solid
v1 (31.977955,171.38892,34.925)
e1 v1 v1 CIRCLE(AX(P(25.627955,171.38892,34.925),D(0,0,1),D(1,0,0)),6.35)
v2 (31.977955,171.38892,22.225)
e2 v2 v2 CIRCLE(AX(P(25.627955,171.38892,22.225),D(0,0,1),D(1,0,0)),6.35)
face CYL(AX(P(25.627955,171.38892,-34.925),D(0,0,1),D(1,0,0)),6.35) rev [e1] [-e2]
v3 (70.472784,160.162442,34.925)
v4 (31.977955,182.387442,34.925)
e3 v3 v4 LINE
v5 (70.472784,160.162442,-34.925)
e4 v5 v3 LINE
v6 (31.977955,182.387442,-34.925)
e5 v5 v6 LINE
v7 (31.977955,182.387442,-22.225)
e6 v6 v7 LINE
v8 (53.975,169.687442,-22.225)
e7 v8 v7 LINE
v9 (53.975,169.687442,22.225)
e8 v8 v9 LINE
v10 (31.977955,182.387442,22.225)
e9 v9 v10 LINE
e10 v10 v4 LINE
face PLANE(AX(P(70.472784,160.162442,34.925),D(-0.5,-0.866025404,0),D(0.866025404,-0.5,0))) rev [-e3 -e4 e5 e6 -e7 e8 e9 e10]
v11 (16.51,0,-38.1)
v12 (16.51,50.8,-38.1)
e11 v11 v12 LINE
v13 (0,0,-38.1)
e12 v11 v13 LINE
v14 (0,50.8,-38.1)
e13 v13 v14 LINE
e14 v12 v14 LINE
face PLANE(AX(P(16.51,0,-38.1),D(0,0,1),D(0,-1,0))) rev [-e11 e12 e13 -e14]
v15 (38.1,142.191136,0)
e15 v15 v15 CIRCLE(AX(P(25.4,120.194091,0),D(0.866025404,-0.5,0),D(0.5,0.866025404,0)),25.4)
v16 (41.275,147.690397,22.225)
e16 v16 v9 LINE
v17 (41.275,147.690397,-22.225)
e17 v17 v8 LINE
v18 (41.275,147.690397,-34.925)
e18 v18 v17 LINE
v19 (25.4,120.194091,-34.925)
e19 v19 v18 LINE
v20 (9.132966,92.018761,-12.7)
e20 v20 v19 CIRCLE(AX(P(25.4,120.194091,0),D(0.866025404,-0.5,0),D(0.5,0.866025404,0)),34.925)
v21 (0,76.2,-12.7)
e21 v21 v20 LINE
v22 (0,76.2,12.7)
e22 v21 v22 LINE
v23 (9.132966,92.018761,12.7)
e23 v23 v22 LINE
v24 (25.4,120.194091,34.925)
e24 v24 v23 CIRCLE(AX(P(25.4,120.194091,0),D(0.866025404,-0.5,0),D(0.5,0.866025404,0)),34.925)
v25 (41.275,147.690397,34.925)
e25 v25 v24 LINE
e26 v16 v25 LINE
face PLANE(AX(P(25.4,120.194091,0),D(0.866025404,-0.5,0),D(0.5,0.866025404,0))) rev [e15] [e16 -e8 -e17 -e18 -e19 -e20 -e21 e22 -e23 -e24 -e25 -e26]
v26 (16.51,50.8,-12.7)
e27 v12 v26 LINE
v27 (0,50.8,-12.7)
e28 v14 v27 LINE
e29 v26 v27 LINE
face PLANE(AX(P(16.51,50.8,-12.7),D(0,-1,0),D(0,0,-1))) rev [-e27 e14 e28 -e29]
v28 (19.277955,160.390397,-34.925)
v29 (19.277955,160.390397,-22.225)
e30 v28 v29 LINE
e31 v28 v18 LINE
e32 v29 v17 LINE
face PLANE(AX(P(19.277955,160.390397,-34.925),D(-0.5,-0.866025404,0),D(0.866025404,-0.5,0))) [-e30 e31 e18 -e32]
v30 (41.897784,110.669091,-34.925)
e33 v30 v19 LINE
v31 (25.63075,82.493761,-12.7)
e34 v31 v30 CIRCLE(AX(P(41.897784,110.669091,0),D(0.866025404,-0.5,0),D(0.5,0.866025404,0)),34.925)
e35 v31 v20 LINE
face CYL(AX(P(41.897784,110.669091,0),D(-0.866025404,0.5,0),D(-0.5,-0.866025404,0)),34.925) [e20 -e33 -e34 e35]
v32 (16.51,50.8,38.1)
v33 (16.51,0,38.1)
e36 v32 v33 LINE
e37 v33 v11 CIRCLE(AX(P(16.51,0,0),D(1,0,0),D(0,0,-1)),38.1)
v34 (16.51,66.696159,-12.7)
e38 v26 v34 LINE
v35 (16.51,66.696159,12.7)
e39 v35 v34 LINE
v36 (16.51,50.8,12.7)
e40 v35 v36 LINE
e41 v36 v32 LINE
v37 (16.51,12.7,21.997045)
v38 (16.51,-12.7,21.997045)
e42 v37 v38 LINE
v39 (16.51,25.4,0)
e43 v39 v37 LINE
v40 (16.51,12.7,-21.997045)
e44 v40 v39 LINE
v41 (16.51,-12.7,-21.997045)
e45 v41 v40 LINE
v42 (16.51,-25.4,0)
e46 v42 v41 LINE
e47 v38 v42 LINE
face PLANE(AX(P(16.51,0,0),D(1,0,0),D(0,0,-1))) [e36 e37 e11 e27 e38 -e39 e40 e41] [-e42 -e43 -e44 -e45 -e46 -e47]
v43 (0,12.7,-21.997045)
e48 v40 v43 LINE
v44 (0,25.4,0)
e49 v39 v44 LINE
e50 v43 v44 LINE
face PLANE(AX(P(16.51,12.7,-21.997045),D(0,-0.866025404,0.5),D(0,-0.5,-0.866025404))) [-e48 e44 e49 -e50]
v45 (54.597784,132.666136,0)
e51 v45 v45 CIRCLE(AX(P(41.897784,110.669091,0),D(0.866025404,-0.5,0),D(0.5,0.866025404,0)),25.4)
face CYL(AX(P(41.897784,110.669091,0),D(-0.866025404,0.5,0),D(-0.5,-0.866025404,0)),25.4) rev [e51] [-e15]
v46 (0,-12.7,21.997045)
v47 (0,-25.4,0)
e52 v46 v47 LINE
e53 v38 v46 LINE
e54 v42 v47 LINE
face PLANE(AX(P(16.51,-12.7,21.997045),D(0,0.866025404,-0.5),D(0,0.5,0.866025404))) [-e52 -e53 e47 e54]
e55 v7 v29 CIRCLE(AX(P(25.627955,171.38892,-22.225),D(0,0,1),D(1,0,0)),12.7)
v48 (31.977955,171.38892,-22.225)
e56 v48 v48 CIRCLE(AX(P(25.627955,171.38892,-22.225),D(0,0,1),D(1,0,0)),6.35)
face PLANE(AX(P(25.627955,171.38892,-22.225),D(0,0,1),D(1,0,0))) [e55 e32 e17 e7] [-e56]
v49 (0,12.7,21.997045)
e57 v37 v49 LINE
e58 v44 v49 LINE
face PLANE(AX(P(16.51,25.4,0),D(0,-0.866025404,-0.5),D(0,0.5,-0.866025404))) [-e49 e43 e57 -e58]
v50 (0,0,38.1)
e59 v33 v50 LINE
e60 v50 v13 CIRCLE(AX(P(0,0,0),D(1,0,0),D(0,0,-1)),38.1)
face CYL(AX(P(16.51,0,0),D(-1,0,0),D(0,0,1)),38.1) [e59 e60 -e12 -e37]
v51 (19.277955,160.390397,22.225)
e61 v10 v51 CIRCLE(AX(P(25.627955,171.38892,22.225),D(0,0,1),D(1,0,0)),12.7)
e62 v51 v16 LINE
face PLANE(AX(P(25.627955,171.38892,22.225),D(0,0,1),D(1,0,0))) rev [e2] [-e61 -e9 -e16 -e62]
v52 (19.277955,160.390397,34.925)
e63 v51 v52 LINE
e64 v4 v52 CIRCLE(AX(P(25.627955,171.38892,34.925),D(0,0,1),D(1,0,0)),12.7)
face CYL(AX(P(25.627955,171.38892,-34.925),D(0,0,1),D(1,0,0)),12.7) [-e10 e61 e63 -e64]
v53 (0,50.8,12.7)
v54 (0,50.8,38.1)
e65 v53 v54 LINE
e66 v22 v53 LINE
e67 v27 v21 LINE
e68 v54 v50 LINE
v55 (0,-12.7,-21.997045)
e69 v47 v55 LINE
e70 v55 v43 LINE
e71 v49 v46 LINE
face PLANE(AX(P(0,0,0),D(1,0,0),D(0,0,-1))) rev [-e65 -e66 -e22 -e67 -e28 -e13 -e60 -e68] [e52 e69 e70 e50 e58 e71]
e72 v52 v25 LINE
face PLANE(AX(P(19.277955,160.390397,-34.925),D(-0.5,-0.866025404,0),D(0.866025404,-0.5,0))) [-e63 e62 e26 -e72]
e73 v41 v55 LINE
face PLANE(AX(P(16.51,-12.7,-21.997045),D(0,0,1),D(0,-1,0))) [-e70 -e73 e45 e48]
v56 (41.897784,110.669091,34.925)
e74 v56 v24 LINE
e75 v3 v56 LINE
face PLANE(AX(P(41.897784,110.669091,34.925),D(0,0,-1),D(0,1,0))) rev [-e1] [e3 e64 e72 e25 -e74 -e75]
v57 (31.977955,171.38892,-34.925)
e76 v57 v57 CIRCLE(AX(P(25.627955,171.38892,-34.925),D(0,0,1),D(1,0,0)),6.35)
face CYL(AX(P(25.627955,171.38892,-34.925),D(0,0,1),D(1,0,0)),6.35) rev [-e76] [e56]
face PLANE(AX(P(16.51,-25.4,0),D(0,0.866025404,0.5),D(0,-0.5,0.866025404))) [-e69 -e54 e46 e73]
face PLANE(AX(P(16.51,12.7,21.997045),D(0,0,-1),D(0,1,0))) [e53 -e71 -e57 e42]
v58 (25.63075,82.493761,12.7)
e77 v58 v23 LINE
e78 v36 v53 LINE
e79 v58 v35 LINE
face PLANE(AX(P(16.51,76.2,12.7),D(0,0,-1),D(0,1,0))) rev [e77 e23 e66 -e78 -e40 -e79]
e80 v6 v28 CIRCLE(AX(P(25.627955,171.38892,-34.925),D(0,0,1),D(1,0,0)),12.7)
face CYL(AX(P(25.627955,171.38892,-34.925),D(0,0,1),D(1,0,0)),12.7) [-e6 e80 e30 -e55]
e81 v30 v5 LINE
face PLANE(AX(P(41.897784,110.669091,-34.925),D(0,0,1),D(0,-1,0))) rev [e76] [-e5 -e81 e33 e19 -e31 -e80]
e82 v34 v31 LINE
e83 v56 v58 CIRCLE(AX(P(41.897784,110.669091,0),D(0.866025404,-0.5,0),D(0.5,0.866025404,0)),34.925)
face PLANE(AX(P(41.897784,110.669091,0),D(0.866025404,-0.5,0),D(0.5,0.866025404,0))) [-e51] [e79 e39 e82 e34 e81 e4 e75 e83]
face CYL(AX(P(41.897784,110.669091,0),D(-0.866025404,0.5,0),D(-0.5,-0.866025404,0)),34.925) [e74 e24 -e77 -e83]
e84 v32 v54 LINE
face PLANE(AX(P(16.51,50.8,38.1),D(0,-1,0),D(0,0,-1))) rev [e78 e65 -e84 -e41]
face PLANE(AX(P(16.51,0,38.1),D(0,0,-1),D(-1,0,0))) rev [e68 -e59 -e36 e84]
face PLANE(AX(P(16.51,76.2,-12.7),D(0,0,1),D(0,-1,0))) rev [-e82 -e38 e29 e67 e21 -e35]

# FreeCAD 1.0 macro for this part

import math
import FreeCAD as App
import Part
import Sketcher

V = App.Vector
Q = App.Units.Quantity


def add_polygon(sketch, points):
    """Adds a closed chain of lines whose ends are joined by coincident constraints."""
    first, n = sketch.GeometryCount, len(points)
    for a, b in zip(points, points[1:] + points[:1]):
        sketch.addGeometry(Part.LineSegment(App.Vector(*a, 0), App.Vector(*b, 0)), False)
    for i in range(n):
        sketch.addConstraint(Sketcher.Constraint("Coincident", first + i, 2, first + (i + 1) % n, 1))

doc = App.newDocument("Part")
body = doc.addObject("PartDesign::Body", "Body")

sketch1 = doc.addObject("Sketcher::SketchObject", "Sketch")
body.addObject(sketch1)
sketch1.AttachmentSupport = (doc.YZ_Plane, [""])
sketch1.MapMode = "FlatFace"
sketch1.addGeometry(Part.LineSegment(V(51, 38, 0), V(0, 38, 0)), False)
sketch1.addGeometry(Part.ArcOfCircle(Part.Circle(V(0, 0, 0), V(0, 0, 1), 38), math.radians(90), math.radians(270)), False)
sketch1.addGeometry(Part.LineSegment(V(0, -38, 0), V(51, -38, 0)), False)
sketch1.addGeometry(Part.LineSegment(V(51, -38, 0), V(51, -13, 0)), False)
sketch1.addGeometry(Part.LineSegment(V(51, -13, 0), V(76, -13, 0)), False)
sketch1.addGeometry(Part.LineSegment(V(76, -13, 0), V(76, 13, 0)), False)
sketch1.addGeometry(Part.LineSegment(V(76, 13, 0), V(51, 13, 0)), False)
sketch1.addGeometry(Part.LineSegment(V(51, 13, 0), V(51, 38, 0)), False)
add_polygon(sketch1, [(25, 0), (13, -22), (-13, -22), (-25, 0), (-13, 22), (13, 22)])
sketch1.addConstraint([
    Sketcher.Constraint("Tangent", 0, 2, 1, 1),
    Sketcher.Constraint("Tangent", 1, 2, 2, 1),
    Sketcher.Constraint("Coincident", 2, 2, 3, 1),
    Sketcher.Constraint("Coincident", 3, 2, 4, 1),
    Sketcher.Constraint("Coincident", 4, 2, 5, 1),
    Sketcher.Constraint("Coincident", 5, 2, 6, 1),
    Sketcher.Constraint("Coincident", 6, 2, 7, 1),
    Sketcher.Constraint("Coincident", 7, 2, 0, 1),
    Sketcher.Constraint("Horizontal", 0),
    Sketcher.Constraint("Horizontal", 2),
    Sketcher.Constraint("Vertical", 3),
    Sketcher.Constraint("Horizontal", 4),
    Sketcher.Constraint("Vertical", 5),
    Sketcher.Constraint("Horizontal", 6),
    Sketcher.Constraint("Vertical", 7),
    Sketcher.Constraint("Horizontal", 9),
    Sketcher.Constraint("Horizontal", 12),
    Sketcher.Constraint("Coincident", 1, 3, -1, 1),
    Sketcher.Constraint("Symmetric", 8, 2, 11, 2, -1, 1),
    Sketcher.Constraint("Symmetric", 10, 2, 13, 2, -1, 1),
    Sketcher.Constraint("Symmetric", 3, 2, 6, 2, -1),
    Sketcher.Constraint("PointOnObject", 10, 2, -1),
    Sketcher.Constraint("Parallel", 10, 13),
    Sketcher.Constraint("Vertical", 9, 2, 11, 2),
    Sketcher.Constraint("Equal", 6, 9),
    Sketcher.Constraint("Equal", 12, 3),
    Sketcher.Constraint("Equal", 3, 5),
    Sketcher.Constraint("Radius", 1, Q("1.5 in")),
    Sketcher.Constraint("DistanceX", 0, 2, 0, 1, Q("2 in")),
    Sketcher.Constraint("Distance", 8, Q("1 in")),
    Sketcher.Constraint("DistanceX", 10, 2, -1, 1, Q("1 in")),
])
pad1 = doc.addObject("PartDesign::Pad", "Pad")
body.addObject(pad1)
pad1.Profile = sketch1
pad1.Length = Q("0.65 in")

sketch2 = doc.addObject("Sketcher::SketchObject", "Sketch001")
body.addObject(sketch2)
sketch2.Placement = App.Placement(V(-32.995568, 19.05, 0), App.Rotation(V(0, 0, 1), V(-0.5, -0.866025404, 0), V(0.866025404, -0.5, 0), "ZXY"))
sketch2.addGeometry([
    Part.LineSegment(V(13, -66, 0), V(-13, -66, 0)),
    Part.LineSegment(V(-13, -66, 0), V(-13, -84, 0)),
    Part.ArcOfCircle(Part.Circle(V(0, -117, 0), V(0, 0, 1), 35), math.radians(111), math.radians(180)),
    Part.LineSegment(V(-35, -117, 0), V(-35, -174, 0)),
    Part.LineSegment(V(-35, -174, 0), V(35, -174, 0)),
    Part.LineSegment(V(35, -174, 0), V(35, -117, 0)),
    Part.ArcOfCircle(Part.Circle(V(0, -117, 0), V(0, 0, 1), 35), math.radians(0), math.radians(69)),
    Part.LineSegment(V(13, -84, 0), V(13, -66, 0)),
    Part.Circle(V(0, -117, 0), V(0, 0, 1), 25),
], False)
sketch2.addConstraint([
    Sketcher.Constraint("Coincident", 0, 2, 1, 1),
    Sketcher.Constraint("Coincident", 1, 2, 2, 1),
    Sketcher.Constraint("Tangent", 2, 2, 3, 1),
    Sketcher.Constraint("Coincident", 3, 2, 4, 1),
    Sketcher.Constraint("Coincident", 4, 2, 5, 1),
    Sketcher.Constraint("Tangent", 5, 2, 6, 1),
    Sketcher.Constraint("Coincident", 6, 2, 7, 1),
    Sketcher.Constraint("Coincident", 7, 2, 0, 1),
    Sketcher.Constraint("Horizontal", 0),
    Sketcher.Constraint("Vertical", 1),
    Sketcher.Constraint("Vertical", 3),
    Sketcher.Constraint("Horizontal", 4),
    Sketcher.Constraint("Vertical", 5),
    Sketcher.Constraint("Vertical", 7),
    Sketcher.Constraint("Coincident", 6, 3, 2, 3),
    Sketcher.Constraint("Coincident", 8, 3, 2, 3),
    Sketcher.Constraint("Equal", 2, 6),
    Sketcher.Constraint("Symmetric", 1, 2, 6, 2, -2),
    Sketcher.Constraint("Diameter", 8, Q("2 in")),
    Sketcher.Constraint("DistanceX", 0, 2, 0, 1, Q("1 in")),
    Sketcher.Constraint("Radius", 2, Q("1.375 in")),
    Sketcher.Constraint("DistanceY", 2, 3, 0, 2, Q("2 in")),
    Sketcher.Constraint("DistanceY", 3, 2, 3, 1, Q("2.25 in")),
    Sketcher.Constraint("DistanceY", 2, 3, -1, 1, 116.791136),
])
pad2 = doc.addObject("PartDesign::Pad", "Pad001")
body.addObject(pad2)
pad2.Profile = sketch2
pad2.Length = Q("0.75 in")

sketch3 = doc.addObject("Sketcher::SketchObject", "Sketch002")
body.addObject(sketch3)
sketch3.AttachmentSupport = (doc.XY_Plane, [""])
sketch3.MapMode = "FlatFace"
sketch3.addGeometry([
    Part.LineSegment(V(54, 170, 0), V(32, 182, 0)),
    Part.ArcOfCircle(Part.Circle(V(26, 171, 0), V(0, 0, 1), 13), math.radians(60), math.radians(240)),
    Part.LineSegment(V(19, 160, 0), V(41, 148, 0)),
    Part.LineSegment(V(41, 148, 0), V(54, 170, 0)),
    Part.Circle(V(26, 171, 0), V(0, 0, 1), 6),
], False)
sketch3.addConstraint([
    Sketcher.Constraint("Tangent", 0, 2, 1, 1),
    Sketcher.Constraint("Tangent", 1, 2, 2, 1),
    Sketcher.Constraint("Coincident", 2, 2, 3, 1),
    Sketcher.Constraint("Coincident", 3, 2, 0, 1),
    Sketcher.Constraint("Coincident", 4, 3, 1, 3),
    Sketcher.Constraint("Parallel", 0, 2),
    Sketcher.Constraint("Perpendicular", 2, 3),
    Sketcher.Constraint("Equal", 2, 3),
    Sketcher.Constraint("Diameter", 4, Q("0.5 in")),
    Sketcher.Constraint("Radius", 1, Q("0.5 in")),
    Sketcher.Constraint("Angle", 0, Q("150 deg")),
    Sketcher.Constraint("DistanceX", -1, 1, 2, 2, Q("1.625 in")),
    Sketcher.Constraint("DistanceY", -1, 1, 1, 3, 171.38892),
])
pad3 = doc.addObject("PartDesign::Pad", "Pad002")
body.addObject(pad3)
pad3.Profile = sketch3
pad3.Type = "TwoLengths"
pad3.Length = Q("1.375 in")
pad3.Length2 = Q("1.375 in")

sketch4 = doc.addObject("Sketcher::SketchObject", "Sketch003")
body.addObject(sketch4)
sketch4.AttachmentSupport = (doc.XY_Plane, [""])
sketch4.MapMode = "FlatFace"
sketch4.addGeometry([
    Part.LineSegment(V(54, 170, 0), V(32, 182, 0)),
    Part.ArcOfCircle(Part.Circle(V(26, 171, 0), V(0, 0, 1), 13), math.radians(60), math.radians(240)),
    Part.LineSegment(V(19, 160, 0), V(41, 148, 0)),
    Part.LineSegment(V(41, 148, 0), V(54, 170, 0)),
    Part.Circle(V(26, 171, 0), V(0, 0, 1), 6),
], False)
sketch4.addConstraint([
    Sketcher.Constraint("Tangent", 0, 2, 1, 1),
    Sketcher.Constraint("Tangent", 1, 2, 2, 1),
    Sketcher.Constraint("Coincident", 2, 2, 3, 1),
    Sketcher.Constraint("Coincident", 3, 2, 0, 1),
    Sketcher.Constraint("Coincident", 4, 3, 1, 3),
    Sketcher.Constraint("Parallel", 0, 2),
    Sketcher.Constraint("Perpendicular", 2, 3),
    Sketcher.Constraint("Equal", 2, 3),
    Sketcher.Constraint("Diameter", 4, Q("0.5 in")),
    Sketcher.Constraint("Radius", 1, Q("0.5 in")),
    Sketcher.Constraint("Angle", 0, Q("150 deg")),
    Sketcher.Constraint("DistanceX", -1, 1, 2, 2, Q("1.625 in")),
    Sketcher.Constraint("DistanceY", -1, 1, 1, 3, 171.38892),
])
pocket1 = doc.addObject("PartDesign::Pocket", "Pocket")
body.addObject(pocket1)
pocket1.Profile = sketch4
pocket1.Length = Q("1.75 in")
pocket1.Midplane = True

doc.recompute()
